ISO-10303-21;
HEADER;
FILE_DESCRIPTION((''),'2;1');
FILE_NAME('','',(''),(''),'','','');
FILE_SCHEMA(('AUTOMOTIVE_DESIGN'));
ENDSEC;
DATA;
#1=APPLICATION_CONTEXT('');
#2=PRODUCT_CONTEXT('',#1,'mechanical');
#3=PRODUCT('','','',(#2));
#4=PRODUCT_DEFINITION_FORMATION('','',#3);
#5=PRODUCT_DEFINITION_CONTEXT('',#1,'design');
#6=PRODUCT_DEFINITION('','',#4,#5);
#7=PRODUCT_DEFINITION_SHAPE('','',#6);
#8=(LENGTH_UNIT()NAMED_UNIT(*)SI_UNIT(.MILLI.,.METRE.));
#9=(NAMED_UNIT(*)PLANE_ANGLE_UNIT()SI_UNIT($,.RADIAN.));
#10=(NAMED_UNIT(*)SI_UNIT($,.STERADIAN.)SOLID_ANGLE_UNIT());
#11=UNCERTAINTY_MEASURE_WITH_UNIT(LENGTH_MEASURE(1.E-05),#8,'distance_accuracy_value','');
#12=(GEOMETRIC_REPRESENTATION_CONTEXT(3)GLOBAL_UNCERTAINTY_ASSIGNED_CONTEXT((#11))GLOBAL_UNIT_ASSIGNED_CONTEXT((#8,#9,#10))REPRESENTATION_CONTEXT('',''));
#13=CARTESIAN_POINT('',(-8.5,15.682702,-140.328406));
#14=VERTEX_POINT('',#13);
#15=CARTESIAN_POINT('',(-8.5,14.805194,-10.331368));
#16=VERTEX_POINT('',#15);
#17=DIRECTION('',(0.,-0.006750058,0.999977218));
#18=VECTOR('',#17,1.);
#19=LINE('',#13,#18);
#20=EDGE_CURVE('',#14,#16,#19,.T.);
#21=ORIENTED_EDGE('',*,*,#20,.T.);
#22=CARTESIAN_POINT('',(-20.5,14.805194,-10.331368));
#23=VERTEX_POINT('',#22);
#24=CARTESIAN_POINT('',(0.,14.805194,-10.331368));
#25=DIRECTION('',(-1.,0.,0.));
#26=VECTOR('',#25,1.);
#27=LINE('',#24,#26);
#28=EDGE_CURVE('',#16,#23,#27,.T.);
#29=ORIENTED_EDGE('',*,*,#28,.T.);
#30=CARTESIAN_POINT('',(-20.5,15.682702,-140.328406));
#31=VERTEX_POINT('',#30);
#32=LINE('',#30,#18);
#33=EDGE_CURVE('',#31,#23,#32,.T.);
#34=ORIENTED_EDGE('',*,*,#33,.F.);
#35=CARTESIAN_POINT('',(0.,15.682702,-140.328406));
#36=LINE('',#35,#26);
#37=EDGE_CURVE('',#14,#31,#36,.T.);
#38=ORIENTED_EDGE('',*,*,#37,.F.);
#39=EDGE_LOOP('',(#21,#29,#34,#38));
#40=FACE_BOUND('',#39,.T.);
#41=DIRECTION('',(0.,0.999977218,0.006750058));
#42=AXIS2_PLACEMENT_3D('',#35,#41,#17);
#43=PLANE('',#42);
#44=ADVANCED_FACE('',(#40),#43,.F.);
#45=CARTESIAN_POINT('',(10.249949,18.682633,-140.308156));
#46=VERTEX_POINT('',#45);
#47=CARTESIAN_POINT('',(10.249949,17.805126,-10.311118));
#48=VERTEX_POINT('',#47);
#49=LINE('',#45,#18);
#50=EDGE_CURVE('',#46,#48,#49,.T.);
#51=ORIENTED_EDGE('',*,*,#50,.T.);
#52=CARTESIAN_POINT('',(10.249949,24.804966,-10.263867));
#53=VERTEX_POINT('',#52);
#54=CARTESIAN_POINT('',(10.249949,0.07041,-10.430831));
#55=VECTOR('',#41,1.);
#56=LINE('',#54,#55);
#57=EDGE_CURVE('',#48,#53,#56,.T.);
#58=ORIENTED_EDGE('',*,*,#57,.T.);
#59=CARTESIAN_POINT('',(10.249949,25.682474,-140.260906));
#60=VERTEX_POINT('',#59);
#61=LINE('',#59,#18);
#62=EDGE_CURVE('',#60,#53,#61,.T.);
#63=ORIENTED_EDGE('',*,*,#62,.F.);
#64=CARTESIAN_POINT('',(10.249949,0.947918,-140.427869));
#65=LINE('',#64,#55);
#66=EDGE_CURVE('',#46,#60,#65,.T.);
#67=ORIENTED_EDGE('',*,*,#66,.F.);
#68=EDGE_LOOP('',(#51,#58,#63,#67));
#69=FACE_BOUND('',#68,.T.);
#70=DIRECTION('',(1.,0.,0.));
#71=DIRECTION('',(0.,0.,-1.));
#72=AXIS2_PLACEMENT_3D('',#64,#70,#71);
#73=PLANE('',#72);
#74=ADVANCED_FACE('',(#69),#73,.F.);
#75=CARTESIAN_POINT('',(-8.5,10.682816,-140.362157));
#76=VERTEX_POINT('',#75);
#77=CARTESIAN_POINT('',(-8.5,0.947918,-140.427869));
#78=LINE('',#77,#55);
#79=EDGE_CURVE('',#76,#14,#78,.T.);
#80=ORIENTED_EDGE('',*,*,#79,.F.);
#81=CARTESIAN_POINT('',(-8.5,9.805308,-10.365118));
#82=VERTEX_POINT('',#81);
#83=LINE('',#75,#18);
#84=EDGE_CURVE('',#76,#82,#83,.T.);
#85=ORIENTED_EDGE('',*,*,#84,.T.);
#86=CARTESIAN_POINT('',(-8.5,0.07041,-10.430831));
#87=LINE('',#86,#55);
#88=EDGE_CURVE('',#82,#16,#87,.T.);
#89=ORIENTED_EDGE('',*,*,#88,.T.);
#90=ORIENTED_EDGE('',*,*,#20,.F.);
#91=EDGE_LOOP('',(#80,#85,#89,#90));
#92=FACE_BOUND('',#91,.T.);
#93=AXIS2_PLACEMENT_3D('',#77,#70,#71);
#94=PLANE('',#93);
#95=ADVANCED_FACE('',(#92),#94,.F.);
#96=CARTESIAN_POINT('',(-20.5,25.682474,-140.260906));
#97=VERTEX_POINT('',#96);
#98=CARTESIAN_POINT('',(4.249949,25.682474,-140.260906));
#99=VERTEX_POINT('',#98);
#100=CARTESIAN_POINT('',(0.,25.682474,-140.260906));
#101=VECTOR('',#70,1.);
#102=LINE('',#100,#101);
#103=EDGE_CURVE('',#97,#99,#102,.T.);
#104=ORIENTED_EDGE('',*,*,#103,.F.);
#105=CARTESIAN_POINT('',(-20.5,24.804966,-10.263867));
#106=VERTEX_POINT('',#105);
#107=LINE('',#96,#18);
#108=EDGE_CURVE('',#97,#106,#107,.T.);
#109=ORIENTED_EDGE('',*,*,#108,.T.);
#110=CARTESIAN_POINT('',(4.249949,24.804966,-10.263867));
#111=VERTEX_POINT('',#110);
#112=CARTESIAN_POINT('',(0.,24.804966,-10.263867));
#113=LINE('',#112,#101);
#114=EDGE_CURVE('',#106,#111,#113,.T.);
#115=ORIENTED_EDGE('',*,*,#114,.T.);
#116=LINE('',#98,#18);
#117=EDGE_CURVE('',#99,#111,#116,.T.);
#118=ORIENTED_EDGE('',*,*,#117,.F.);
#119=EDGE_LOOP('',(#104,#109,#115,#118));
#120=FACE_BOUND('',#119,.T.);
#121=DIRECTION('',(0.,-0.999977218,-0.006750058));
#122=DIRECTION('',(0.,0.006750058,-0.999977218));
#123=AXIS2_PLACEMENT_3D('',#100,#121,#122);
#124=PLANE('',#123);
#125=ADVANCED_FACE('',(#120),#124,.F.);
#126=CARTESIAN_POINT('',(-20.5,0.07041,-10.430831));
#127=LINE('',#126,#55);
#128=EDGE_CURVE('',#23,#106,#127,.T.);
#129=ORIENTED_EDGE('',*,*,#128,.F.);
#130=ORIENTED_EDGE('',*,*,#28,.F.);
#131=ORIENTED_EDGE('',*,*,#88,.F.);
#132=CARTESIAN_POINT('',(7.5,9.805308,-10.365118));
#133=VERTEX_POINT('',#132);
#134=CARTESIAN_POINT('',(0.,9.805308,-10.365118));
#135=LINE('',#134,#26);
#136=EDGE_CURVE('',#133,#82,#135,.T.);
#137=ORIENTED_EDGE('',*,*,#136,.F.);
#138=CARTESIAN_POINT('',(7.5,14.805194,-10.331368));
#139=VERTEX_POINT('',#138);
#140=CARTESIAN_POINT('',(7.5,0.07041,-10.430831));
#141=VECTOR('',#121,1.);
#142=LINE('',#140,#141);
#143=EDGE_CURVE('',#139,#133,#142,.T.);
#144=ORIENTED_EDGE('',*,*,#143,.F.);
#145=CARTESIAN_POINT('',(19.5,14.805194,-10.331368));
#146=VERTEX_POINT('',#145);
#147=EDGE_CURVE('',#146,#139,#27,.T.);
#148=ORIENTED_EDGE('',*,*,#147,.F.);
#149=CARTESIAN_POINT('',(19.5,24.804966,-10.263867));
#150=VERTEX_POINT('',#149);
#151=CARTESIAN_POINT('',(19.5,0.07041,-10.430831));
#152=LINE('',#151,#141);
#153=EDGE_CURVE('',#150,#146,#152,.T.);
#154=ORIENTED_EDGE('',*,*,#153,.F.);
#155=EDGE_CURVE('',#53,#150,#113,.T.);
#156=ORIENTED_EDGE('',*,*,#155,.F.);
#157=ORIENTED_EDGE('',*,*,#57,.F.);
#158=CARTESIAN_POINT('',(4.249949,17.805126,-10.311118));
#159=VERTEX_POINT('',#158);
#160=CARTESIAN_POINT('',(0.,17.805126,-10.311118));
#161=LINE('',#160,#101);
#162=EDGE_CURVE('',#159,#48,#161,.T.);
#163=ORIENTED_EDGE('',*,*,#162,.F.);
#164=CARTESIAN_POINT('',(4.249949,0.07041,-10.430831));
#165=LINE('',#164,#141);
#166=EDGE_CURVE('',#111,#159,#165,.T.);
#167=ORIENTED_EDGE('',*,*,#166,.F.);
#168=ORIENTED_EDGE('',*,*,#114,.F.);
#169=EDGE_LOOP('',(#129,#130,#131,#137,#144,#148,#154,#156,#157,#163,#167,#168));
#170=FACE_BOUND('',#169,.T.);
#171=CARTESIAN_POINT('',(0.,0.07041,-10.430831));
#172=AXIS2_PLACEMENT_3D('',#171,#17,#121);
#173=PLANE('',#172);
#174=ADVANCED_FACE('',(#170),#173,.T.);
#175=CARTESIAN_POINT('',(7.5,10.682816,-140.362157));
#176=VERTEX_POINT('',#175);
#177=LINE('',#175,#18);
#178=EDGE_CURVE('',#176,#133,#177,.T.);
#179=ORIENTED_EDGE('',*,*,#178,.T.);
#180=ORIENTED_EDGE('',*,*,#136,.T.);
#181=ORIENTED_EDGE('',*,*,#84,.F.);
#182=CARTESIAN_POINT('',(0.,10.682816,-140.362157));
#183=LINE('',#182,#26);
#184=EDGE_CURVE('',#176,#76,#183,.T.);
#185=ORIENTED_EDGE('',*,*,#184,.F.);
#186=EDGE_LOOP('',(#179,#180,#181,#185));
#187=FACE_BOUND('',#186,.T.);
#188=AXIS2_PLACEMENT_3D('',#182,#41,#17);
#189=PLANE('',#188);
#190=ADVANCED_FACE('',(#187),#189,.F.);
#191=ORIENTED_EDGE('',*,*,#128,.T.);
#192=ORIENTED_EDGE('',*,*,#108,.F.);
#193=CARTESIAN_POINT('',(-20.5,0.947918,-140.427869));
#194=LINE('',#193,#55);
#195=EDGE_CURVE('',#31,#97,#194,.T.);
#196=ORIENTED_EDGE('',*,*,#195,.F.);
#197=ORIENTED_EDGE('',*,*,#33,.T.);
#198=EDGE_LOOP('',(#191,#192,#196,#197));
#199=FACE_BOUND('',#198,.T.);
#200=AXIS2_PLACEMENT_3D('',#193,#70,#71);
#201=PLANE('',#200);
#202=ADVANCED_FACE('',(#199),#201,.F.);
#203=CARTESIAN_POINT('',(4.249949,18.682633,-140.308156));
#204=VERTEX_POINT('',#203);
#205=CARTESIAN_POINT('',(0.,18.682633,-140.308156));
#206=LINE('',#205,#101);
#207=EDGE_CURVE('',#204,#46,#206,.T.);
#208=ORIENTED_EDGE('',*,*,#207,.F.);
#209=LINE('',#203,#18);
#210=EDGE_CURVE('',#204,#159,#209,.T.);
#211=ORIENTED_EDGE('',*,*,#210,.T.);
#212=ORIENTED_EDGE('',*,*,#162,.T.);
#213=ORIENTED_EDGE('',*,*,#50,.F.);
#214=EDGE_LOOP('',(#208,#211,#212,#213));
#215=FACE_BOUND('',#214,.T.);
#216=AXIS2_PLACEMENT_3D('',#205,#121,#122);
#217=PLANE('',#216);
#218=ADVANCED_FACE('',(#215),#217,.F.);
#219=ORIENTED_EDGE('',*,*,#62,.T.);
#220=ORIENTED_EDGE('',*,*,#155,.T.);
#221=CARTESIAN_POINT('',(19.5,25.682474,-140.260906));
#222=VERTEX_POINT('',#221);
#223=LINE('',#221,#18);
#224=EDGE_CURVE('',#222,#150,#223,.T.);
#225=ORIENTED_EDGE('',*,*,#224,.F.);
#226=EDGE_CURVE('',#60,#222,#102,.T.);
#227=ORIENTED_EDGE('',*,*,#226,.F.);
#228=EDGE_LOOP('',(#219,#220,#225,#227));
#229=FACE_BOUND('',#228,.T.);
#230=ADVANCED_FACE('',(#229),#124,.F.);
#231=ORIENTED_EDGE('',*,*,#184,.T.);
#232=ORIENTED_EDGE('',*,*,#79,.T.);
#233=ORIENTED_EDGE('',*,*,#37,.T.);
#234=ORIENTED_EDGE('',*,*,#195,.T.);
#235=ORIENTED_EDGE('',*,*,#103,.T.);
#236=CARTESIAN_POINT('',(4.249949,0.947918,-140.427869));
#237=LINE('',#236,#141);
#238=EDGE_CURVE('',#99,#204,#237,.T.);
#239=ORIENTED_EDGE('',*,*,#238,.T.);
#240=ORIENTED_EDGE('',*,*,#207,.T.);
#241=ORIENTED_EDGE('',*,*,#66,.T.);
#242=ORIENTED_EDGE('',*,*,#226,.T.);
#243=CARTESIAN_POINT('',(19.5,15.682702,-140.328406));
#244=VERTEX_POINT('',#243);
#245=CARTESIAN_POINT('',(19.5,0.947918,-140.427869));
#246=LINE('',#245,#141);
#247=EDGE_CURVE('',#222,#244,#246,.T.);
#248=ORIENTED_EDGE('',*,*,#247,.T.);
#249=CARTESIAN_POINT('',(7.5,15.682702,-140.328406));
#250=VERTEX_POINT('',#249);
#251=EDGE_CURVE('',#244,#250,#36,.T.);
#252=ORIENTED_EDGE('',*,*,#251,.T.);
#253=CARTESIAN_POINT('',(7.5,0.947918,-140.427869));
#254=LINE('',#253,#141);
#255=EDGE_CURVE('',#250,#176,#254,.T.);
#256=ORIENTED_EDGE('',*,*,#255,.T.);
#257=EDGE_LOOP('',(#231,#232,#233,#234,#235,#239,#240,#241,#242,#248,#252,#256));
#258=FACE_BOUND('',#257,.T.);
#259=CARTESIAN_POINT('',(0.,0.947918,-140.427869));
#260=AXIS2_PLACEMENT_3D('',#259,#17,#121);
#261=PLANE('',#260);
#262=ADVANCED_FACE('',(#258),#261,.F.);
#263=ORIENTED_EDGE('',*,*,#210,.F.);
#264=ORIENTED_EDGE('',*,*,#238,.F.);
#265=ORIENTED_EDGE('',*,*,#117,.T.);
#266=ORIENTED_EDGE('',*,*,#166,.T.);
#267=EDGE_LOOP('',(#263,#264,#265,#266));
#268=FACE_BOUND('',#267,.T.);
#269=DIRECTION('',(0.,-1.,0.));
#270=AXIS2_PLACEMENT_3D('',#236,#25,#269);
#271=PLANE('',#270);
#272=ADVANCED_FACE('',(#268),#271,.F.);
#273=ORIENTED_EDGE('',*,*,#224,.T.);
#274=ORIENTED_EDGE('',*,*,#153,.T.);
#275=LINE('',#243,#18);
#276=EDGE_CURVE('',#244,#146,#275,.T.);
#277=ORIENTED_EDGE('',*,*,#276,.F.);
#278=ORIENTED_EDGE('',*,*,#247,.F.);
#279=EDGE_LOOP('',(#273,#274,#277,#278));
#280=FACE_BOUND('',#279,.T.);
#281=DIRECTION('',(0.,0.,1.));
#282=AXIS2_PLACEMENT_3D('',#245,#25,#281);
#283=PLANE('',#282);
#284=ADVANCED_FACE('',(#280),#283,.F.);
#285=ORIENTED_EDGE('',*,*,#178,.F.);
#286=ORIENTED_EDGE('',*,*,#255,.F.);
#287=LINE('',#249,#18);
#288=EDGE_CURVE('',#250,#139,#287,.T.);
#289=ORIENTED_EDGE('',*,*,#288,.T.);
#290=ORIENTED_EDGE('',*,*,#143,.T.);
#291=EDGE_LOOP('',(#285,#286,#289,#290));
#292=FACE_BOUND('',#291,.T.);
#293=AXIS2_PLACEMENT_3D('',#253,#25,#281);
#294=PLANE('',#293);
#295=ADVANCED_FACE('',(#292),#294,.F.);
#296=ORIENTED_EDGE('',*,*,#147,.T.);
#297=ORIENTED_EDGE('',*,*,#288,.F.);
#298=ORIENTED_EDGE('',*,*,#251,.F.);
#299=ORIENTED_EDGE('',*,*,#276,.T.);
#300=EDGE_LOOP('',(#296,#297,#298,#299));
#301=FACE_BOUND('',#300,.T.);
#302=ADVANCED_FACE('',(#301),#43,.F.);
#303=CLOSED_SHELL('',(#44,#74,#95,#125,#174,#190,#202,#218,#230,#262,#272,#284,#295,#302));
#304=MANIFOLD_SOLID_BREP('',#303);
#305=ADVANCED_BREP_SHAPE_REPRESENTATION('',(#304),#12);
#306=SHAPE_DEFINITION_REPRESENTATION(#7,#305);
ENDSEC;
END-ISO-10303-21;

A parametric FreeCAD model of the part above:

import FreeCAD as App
import Part
import Sketcher

V = App.Vector
Q = App.Units.Quantity


def add_polygon(sketch, points):
    """Adds a closed chain of lines whose ends are joined by coincident constraints."""
    first, n = sketch.GeometryCount, len(points)
    for a, b in zip(points, points[1:] + points[:1]):
        sketch.addGeometry(Part.LineSegment(App.Vector(*a, 0), App.Vector(*b, 0)), False)
    for i in range(n):
        sketch.addConstraint(Sketcher.Constraint("Coincident", first + i, 2, first + (i + 1) % n, 1))

doc = App.newDocument("Part")
body = doc.addObject("PartDesign::Body", "Body")

sketch1 = doc.addObject("Sketcher::SketchObject", "Sketch")
body.addObject(sketch1)
sketch1.Placement = App.Placement(V(0, 0.07041, -10.430831), App.Rotation(V(1, 0, 0), V(0, 0.999977218, 0.006750058), V(0, -0.006750058, 0.999977218), "ZXY"))
add_polygon(sketch1, [(-8.5, 9.7), (7.5, 9.7), (7.5, 14.7), (19.5, 14.7), (19.5, 24.7), (10.2, 24.7), (10.2, 17.7), (4.2, 17.7), (4.2, 24.7), (-20.5, 24.7), (-20.5, 14.7), (-8.5, 14.7)])
sketch1.addConstraint([
    Sketcher.Constraint("Horizontal", 0),
    Sketcher.Constraint("Vertical", 1),
    Sketcher.Constraint("Horizontal", 2),
    Sketcher.Constraint("Vertical", 3),
    Sketcher.Constraint("Horizontal", 4),
    Sketcher.Constraint("Vertical", 5),
    Sketcher.Constraint("Horizontal", 6),
    Sketcher.Constraint("Vertical", 7),
    Sketcher.Constraint("Horizontal", 8),
    Sketcher.Constraint("Vertical", 9),
    Sketcher.Constraint("Horizontal", 10),
    Sketcher.Constraint("Vertical", 11),
    Sketcher.Constraint("Horizontal", 4, 2, 7, 2),
    Sketcher.Constraint("Horizontal", 2, 2, 9, 2),
    Sketcher.Constraint("Equal", 2, 10),
    Sketcher.Constraint("DistanceX", 0, 1, 0, 2, Q("16 mm")),
    Sketcher.Constraint("DistanceX", 2, 1, 2, 2, Q("12 mm")),
    Sketcher.Constraint("DistanceX", 6, 2, 6, 1, Q("6 mm")),
    Sketcher.Constraint("DistanceY", 1, 1, 1, 2, Q("5 mm")),
    Sketcher.Constraint("DistanceY", 3, 1, 3, 2, Q("10 mm")),
    Sketcher.Constraint("DistanceY", 5, 2, 5, 1, Q("7 mm")),
    Sketcher.Constraint("DistanceX", -1, 1, 0, 2, Q("7.5 mm")),
    Sketcher.Constraint("DistanceX", 4, 2, 4, 1, Q("9.250051 mm")),
    Sketcher.Constraint("DistanceY", -1, 1, 0, 2, Q("9.73512 mm")),
])
pad1 = doc.addObject("PartDesign::Pad", "Pad")
body.addObject(pad1)
pad1.Profile = sketch1
pad1.Length = 130
pad1.Reversed = True

doc.recompute()
